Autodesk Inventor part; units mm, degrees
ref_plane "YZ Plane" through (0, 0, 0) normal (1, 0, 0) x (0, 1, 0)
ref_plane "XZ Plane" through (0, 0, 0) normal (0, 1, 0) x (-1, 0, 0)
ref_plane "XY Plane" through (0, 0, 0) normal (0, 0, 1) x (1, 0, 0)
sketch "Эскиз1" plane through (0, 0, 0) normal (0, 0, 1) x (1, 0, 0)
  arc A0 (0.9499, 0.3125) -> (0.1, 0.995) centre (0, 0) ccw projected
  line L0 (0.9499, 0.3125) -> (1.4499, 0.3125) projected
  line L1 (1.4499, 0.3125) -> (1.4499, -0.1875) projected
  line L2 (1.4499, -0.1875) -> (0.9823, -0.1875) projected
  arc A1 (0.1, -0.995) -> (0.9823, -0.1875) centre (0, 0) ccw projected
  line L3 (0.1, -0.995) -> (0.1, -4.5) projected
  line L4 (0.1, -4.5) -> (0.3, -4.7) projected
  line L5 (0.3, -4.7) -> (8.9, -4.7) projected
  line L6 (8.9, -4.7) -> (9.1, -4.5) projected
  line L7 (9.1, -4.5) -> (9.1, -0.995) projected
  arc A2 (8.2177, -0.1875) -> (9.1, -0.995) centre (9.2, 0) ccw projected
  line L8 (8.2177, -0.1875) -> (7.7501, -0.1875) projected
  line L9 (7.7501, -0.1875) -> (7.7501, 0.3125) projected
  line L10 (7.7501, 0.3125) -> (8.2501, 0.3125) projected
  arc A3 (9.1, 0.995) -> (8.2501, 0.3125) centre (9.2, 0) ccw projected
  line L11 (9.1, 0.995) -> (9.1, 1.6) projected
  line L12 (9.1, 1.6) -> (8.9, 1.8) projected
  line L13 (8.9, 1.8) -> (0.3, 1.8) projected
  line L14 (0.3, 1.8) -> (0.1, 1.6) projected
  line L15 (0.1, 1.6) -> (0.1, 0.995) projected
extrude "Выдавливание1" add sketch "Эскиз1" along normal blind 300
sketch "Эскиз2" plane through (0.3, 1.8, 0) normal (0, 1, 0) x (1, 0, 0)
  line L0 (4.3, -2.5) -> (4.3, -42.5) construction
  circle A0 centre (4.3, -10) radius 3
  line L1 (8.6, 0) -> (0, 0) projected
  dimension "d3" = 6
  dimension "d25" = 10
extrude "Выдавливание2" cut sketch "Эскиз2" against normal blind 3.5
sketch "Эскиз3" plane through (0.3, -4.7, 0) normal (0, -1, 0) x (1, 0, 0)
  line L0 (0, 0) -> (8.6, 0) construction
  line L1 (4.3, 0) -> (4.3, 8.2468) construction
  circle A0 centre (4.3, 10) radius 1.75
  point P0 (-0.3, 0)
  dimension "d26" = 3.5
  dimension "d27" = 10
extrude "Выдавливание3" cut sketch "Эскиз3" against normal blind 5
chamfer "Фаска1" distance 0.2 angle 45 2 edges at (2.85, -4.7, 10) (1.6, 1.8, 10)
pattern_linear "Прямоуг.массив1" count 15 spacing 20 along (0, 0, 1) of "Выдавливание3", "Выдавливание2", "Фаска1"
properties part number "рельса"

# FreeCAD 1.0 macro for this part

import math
import FreeCAD as App
import Part
import Sketcher


def edges_at(feature, points):
    """Names of the edges that pass closest to the given points."""
    edges = feature.Shape.Edges
    near = lambda p: min(range(len(edges)), key=lambda i: edges[i].distToShape(Part.Vertex(*p))[0])
    return sorted({f"Edge{near(p) + 1}" for p in points})

doc = App.newDocument("Part")
body = doc.addObject("PartDesign::Body", "Body")

# Sketch on XY plane
sketch1 = doc.addObject("Sketcher::SketchObject", "Sketch")
body.addObject(sketch1)
sketch1.AttachmentSupport = (doc.XY_Plane, [""])
sketch1.MapMode = "FlatFace"
sketch1.addGeometry(Part.ArcOfCircle(Part.Circle(App.Vector(0, 0, 0), App.Vector(0, 0, 1), 1.000012), math.radians(18.210275), math.radians(84.260902)), False)
sketch1.addGeometry(Part.LineSegment(App.Vector(0.9499, 0.3125, 0), App.Vector(1.4499, 0.3125, 0)), False)
sketch1.addGeometry(Part.LineSegment(App.Vector(1.4499, 0.3125, 0), App.Vector(1.4499, -0.1875, 0)), False)
sketch1.addGeometry(Part.LineSegment(App.Vector(1.4499, -0.1875, 0), App.Vector(0.9823, -0.1875, 0)), False)
sketch1.addGeometry(Part.ArcOfCircle(Part.Circle(App.Vector(0, 0, 0), App.Vector(0, 0, 1), 1.000012), math.radians(-84.260902), math.radians(-10.806543)), False)
sketch1.addGeometry(Part.LineSegment(App.Vector(0.1, -0.995, 0), App.Vector(0.1, -4.5, 0)), False)
sketch1.addGeometry(Part.LineSegment(App.Vector(0.1, -4.5, 0), App.Vector(0.3, -4.7, 0)), False)
sketch1.addGeometry(Part.LineSegment(App.Vector(0.3, -4.7, 0), App.Vector(8.9, -4.7, 0)), False)
sketch1.addGeometry(Part.LineSegment(App.Vector(8.9, -4.7, 0), App.Vector(9.1, -4.5, 0)), False)
sketch1.addGeometry(Part.LineSegment(App.Vector(9.1, -4.5, 0), App.Vector(9.1, -0.995, 0)), False)
sketch1.addGeometry(Part.ArcOfCircle(Part.Circle(App.Vector(9.2, 0, 0), App.Vector(0, 0, 1), 1.000012), math.radians(-169.193457), math.radians(-95.739098)), False)
sketch1.addGeometry(Part.LineSegment(App.Vector(8.2177, -0.1875, 0), App.Vector(7.7501, -0.1875, 0)), False)
sketch1.addGeometry(Part.LineSegment(App.Vector(7.7501, -0.1875, 0), App.Vector(7.7501, 0.3125, 0)), False)
sketch1.addGeometry(Part.LineSegment(App.Vector(7.7501, 0.3125, 0), App.Vector(8.2501, 0.3125, 0)), False)
sketch1.addGeometry(Part.ArcOfCircle(Part.Circle(App.Vector(9.2, 0, 0), App.Vector(0, 0, 1), 1.000012), math.radians(95.739098), math.radians(161.789725)), False)
sketch1.addGeometry(Part.LineSegment(App.Vector(9.1, 0.995, 0), App.Vector(9.1, 1.6, 0)), False)
sketch1.addGeometry(Part.LineSegment(App.Vector(9.1, 1.6, 0), App.Vector(8.9, 1.8, 0)), False)
sketch1.addGeometry(Part.LineSegment(App.Vector(8.9, 1.8, 0), App.Vector(0.3, 1.8, 0)), False)
sketch1.addGeometry(Part.LineSegment(App.Vector(0.3, 1.8, 0), App.Vector(0.1, 1.6, 0)), False)
sketch1.addGeometry(Part.LineSegment(App.Vector(0.1, 1.6, 0), App.Vector(0.1, 0.995, 0)), False)
sketch1.addConstraint(Sketcher.Constraint("Coincident", 0, 1, 1, 1))
sketch1.addConstraint(Sketcher.Constraint("Coincident", 1, 2, 2, 1))
sketch1.addConstraint(Sketcher.Constraint("Coincident", 2, 2, 3, 1))
sketch1.addConstraint(Sketcher.Constraint("Coincident", 3, 2, 4, 2))
sketch1.addConstraint(Sketcher.Constraint("Coincident", 4, 1, 5, 1))
sketch1.addConstraint(Sketcher.Constraint("Coincident", 5, 2, 6, 1))
sketch1.addConstraint(Sketcher.Constraint("Coincident", 6, 2, 7, 1))
sketch1.addConstraint(Sketcher.Constraint("Coincident", 7, 2, 8, 1))
sketch1.addConstraint(Sketcher.Constraint("Coincident", 8, 2, 9, 1))
sketch1.addConstraint(Sketcher.Constraint("Coincident", 9, 2, 10, 2))
sketch1.addConstraint(Sketcher.Constraint("Coincident", 10, 1, 11, 1))
sketch1.addConstraint(Sketcher.Constraint("Coincident", 11, 2, 12, 1))
sketch1.addConstraint(Sketcher.Constraint("Coincident", 12, 2, 13, 1))
sketch1.addConstraint(Sketcher.Constraint("Coincident", 13, 2, 14, 2))
sketch1.addConstraint(Sketcher.Constraint("Coincident", 14, 1, 15, 1))
sketch1.addConstraint(Sketcher.Constraint("Coincident", 15, 2, 16, 1))
sketch1.addConstraint(Sketcher.Constraint("Coincident", 16, 2, 17, 1))
sketch1.addConstraint(Sketcher.Constraint("Coincident", 17, 2, 18, 1))
sketch1.addConstraint(Sketcher.Constraint("Coincident", 18, 2, 19, 1))
sketch1.addConstraint(Sketcher.Constraint("Coincident", 19, 2, 0, 2))
sketch1.addConstraint(Sketcher.Constraint("Horizontal", 1))
sketch1.addConstraint(Sketcher.Constraint("Vertical", 2))
sketch1.addConstraint(Sketcher.Constraint("Horizontal", 3))
sketch1.addConstraint(Sketcher.Constraint("Vertical", 5))
sketch1.addConstraint(Sketcher.Constraint("Horizontal", 7))
sketch1.addConstraint(Sketcher.Constraint("Vertical", 9))
sketch1.addConstraint(Sketcher.Constraint("Horizontal", 11))
sketch1.addConstraint(Sketcher.Constraint("Vertical", 12))
sketch1.addConstraint(Sketcher.Constraint("Horizontal", 13))
sketch1.addConstraint(Sketcher.Constraint("Vertical", 15))
sketch1.addConstraint(Sketcher.Constraint("Horizontal", 17))
sketch1.addConstraint(Sketcher.Constraint("Vertical", 19))
sketch1.addConstraint(Sketcher.Constraint("Coincident", 0, 3, -1, 1))
sketch1.addConstraint(Sketcher.Constraint("Coincident", 4, 3, -1, 1))
sketch1.addConstraint(Sketcher.Constraint("Coincident", 14, 3, 10, 3))
sketch1.addConstraint(Sketcher.Constraint("Equal", 0, 4))
sketch1.addConstraint(Sketcher.Constraint("Equal", 4, 10))
sketch1.addConstraint(Sketcher.Constraint("Equal", 10, 14))
sketch1.addConstraint(Sketcher.Constraint("Symmetric", 9, 2, 14, 1, -1))
sketch1.addConstraint(Sketcher.Constraint("Perpendicular", 6, 8))
sketch1.addConstraint(Sketcher.Constraint("Perpendicular", 8, 16))
sketch1.addConstraint(Sketcher.Constraint("Perpendicular", 16, 18))
sketch1.addConstraint(Sketcher.Constraint("Horizontal", 5, 2, 8, 2))
sketch1.addConstraint(Sketcher.Constraint("Horizontal", 4, 1, 9, 2))
sketch1.addConstraint(Sketcher.Constraint("Horizontal", 3, 2, 10, 1))
sketch1.addConstraint(Sketcher.Constraint("Horizontal", 1, 2, 12, 2))
sketch1.addConstraint(Sketcher.Constraint("Horizontal", 15, 2, 18, 2))
sketch1.addConstraint(Sketcher.Constraint("Horizontal", 14, 1, 19, 2))
sketch1.addConstraint(Sketcher.Constraint("Vertical", 7, 2, 16, 2))
sketch1.addConstraint(Sketcher.Constraint("Vertical", 6, 2, 17, 2))
sketch1.addConstraint(Sketcher.Constraint("Equal", 3, 11))
sketch1.addConstraint(Sketcher.Constraint("Equal", 13, 2))
sketch1.addConstraint(Sketcher.Constraint("Radius", 0, 1.0))
sketch1.addConstraint(Sketcher.Constraint("DistanceX", 1, 1, 1, 2, 0.5))
sketch1.addConstraint(Sketcher.Constraint("DistanceX", 7, 1, 7, 2, 8.6))
sketch1.addConstraint(Sketcher.Constraint("DistanceX", -1, 1, 10, 3, 9.2))
sketch1.addConstraint(Sketcher.Constraint("DistanceX", -1, 1, 4, 1, 0.1))
sketch1.addConstraint(Sketcher.Constraint("DistanceY", 5, 2, -1, 1, 4.5))
sketch1.addConstraint(Sketcher.Constraint("DistanceY", -1, 1, 15, 2, 1.6))
sketch1.addConstraint(Sketcher.Constraint("DistanceX", -1, 1, 0, 1, 0.95))
pad1 = doc.addObject("PartDesign::Pad", "Pad")
body.addObject(pad1)
pad1.Profile = sketch1
pad1.Length = 300

# Sketch on XZ plane
sketch2 = doc.addObject("Sketcher::SketchObject", "Sketch001")
body.addObject(sketch2)
sketch2.AttachmentSupport = (doc.XZ_Plane, [""])
sketch2.MapMode = "FlatFace"
sketch2.AttachmentOffset = App.Placement(App.Vector(0, 0, -1.8), App.Rotation())
sketch2.addGeometry(Part.Circle(App.Vector(4.6, 10, 0), App.Vector(0, 0, 1), 3), False)
sketch2.addConstraint(Sketcher.Constraint("Diameter", 0, 6.0))
sketch2.addConstraint(Sketcher.Constraint("DistanceY", -1, 1, 0, 3, 10.0))
sketch2.addConstraint(Sketcher.Constraint("DistanceX", -1, 1, 0, 3, 4.6))
pocket1 = doc.addObject("PartDesign::Pocket", "Pocket")
body.addObject(pocket1)
pocket1.Profile = sketch2
pocket1.Length = 3.5
pocket1.Reversed = True

# Sketch on XZ plane
sketch3 = doc.addObject("Sketcher::SketchObject", "Sketch002")
body.addObject(sketch3)
sketch3.AttachmentSupport = (doc.XZ_Plane, [""])
sketch3.MapMode = "FlatFace"
sketch3.AttachmentOffset = App.Placement(App.Vector(0, 0, 4.7), App.Rotation())
sketch3.addGeometry(Part.Circle(App.Vector(4.6, 10, 0), App.Vector(0, 0, 1), 1.75), False)
sketch3.addConstraint(Sketcher.Constraint("Diameter", 0, 3.5))
sketch3.addConstraint(Sketcher.Constraint("DistanceY", -1, 1, 0, 3, 10.0))
sketch3.addConstraint(Sketcher.Constraint("DistanceX", -1, 1, 0, 3, 4.6))
pocket2 = doc.addObject("PartDesign::Pocket", "Pocket001")
body.addObject(pocket2)
pocket2.Profile = sketch3
pocket2.Length = 5
doc.recompute()

chamfer = doc.addObject("PartDesign::Chamfer", "Chamfer")
body.addObject(chamfer)
chamfer.Base = (pocket2, edges_at(pocket2, [(2.85, -4.7, 10), (1.6, 1.8, 10)]))
chamfer.Size = 0.2
doc.recompute()

linearpattern = doc.addObject("PartDesign::LinearPattern", "LinearPattern")
body.addObject(linearpattern)
linearpattern.Originals = [pocket2, pocket1, chamfer]
linearpattern.Direction = (doc.Z_Axis, [""])
linearpattern.Mode = "offset"
linearpattern.Offset = 20
linearpattern.Occurrences = 15
body.Tip = linearpattern

doc.recompute()
